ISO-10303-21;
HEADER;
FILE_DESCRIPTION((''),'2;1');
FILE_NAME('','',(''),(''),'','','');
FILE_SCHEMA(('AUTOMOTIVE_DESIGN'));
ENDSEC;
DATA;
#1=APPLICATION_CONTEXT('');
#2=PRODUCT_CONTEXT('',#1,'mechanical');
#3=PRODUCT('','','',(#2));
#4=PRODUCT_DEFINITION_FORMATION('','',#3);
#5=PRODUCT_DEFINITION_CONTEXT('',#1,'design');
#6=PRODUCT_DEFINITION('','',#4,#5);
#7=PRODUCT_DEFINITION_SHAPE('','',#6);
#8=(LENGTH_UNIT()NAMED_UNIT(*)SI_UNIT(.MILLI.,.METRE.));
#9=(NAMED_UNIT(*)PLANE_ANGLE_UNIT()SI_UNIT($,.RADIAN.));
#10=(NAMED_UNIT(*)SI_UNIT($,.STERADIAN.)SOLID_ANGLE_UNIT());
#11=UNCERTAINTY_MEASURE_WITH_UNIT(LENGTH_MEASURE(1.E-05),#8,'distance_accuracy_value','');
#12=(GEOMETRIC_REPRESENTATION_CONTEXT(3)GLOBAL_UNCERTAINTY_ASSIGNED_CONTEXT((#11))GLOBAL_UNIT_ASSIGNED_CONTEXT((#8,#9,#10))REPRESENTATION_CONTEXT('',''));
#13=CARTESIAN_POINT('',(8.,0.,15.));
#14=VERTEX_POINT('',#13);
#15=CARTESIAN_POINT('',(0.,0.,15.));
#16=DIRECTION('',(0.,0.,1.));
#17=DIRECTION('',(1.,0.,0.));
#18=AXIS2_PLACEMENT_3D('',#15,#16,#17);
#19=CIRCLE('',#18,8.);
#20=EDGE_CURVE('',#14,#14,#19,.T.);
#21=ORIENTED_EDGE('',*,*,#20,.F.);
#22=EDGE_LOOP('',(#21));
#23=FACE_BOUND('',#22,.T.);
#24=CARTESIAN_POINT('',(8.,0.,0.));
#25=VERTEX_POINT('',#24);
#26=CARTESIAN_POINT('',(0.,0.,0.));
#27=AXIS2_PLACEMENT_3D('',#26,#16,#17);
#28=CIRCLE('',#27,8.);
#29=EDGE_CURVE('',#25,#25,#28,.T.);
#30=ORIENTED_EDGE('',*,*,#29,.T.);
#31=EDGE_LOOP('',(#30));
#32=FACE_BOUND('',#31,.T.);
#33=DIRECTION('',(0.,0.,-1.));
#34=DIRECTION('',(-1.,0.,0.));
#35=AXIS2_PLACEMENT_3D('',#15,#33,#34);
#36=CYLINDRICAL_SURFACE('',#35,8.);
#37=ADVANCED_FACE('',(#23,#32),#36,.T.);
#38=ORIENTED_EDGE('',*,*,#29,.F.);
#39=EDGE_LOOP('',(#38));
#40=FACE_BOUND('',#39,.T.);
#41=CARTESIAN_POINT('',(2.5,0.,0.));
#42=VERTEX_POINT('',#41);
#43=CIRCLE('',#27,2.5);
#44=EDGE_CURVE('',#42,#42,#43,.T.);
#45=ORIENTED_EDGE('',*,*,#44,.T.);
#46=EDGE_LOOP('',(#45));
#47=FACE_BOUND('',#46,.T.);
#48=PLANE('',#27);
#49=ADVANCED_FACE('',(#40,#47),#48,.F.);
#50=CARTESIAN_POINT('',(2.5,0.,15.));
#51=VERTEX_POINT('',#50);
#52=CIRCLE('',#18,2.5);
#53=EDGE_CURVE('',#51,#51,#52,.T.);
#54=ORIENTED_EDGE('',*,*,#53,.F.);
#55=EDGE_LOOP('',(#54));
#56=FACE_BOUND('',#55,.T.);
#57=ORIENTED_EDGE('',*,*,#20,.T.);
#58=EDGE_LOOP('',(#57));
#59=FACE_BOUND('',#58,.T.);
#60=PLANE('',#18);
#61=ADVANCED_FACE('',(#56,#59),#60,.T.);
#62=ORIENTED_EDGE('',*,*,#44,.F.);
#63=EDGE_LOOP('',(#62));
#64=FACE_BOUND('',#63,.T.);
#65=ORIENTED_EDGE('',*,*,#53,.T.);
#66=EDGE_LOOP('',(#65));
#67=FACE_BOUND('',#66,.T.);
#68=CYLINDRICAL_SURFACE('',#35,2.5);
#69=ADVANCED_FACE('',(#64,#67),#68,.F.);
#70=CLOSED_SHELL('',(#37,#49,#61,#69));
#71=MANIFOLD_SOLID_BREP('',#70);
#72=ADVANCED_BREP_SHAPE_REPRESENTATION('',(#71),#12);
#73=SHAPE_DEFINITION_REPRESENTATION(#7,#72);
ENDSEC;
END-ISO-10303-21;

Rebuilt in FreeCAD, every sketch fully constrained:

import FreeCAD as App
import Part
import Sketcher
from FreeCAD import Vector
Q = App.Units.Quantity

doc = App.newDocument("Part")
body = doc.addObject("PartDesign::Body", "Body")

# Sketch on XY plane
sketch1 = body.newObject("Sketcher::SketchObject", "Sketch")
sketch1.AttachmentSupport = (doc.getObject("XY_Plane"), [""])
sketch1.MapMode = "FlatFace"
sketch1.addGeometry([
    Part.Circle(Vector(0, 0, 0), Vector(0, 0, 1), 8),
    Part.Circle(Vector(0, 0, 0), Vector(0, 0, 1), 2.5),
], False)
sketch1.addConstraint([
    Sketcher.Constraint("Coincident", 0, 3, -1, 1),
    Sketcher.Constraint("Coincident", 1, 3, -1, 1),
    Sketcher.Constraint("Diameter", 0, Q("16 mm")),
    Sketcher.Constraint("Diameter", 1, Q("5 mm")),
])
pad1 = body.newObject("PartDesign::Pad", "Pad")
pad1.Profile = sketch1
pad1.Length = 15

doc.recompute()
